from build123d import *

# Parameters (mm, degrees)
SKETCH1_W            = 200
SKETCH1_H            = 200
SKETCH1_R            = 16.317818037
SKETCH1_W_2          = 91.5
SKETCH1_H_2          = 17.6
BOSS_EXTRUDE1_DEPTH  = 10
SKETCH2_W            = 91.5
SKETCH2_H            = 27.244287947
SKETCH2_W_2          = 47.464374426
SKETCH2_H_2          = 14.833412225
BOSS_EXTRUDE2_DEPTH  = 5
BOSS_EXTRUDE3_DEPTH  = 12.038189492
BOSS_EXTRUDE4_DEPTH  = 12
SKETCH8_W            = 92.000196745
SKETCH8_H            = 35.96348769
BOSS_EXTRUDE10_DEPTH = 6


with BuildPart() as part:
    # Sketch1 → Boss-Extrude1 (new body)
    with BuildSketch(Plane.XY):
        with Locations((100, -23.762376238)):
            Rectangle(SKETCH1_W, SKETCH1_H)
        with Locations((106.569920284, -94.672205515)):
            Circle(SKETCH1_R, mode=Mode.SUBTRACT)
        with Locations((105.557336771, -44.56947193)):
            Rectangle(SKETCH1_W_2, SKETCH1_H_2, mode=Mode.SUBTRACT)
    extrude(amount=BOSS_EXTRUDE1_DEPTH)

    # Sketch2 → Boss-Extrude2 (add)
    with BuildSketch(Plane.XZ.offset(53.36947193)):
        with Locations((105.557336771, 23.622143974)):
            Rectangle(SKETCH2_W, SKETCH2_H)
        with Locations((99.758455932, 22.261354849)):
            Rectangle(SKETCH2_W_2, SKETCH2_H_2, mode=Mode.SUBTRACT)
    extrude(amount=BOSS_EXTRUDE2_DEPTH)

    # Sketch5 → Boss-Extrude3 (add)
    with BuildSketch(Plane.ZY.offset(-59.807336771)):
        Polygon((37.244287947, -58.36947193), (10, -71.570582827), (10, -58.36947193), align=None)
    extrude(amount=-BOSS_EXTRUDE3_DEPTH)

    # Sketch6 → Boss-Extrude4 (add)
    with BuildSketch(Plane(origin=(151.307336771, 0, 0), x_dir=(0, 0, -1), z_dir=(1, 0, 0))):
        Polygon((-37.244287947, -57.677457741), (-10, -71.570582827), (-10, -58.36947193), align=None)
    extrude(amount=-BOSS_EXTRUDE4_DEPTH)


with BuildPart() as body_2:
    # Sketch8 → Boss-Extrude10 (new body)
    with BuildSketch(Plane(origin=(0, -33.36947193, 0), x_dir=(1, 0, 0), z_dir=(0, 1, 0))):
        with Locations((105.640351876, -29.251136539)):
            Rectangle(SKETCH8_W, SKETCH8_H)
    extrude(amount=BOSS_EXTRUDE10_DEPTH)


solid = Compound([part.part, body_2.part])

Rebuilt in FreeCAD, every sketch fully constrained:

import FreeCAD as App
import Part
import Sketcher
from FreeCAD import Vector

doc = App.newDocument("Part")
body = doc.addObject("PartDesign::Body", "Body")

# Sketch on XY plane
sketch1 = body.newObject("Sketcher::SketchObject", "Sketch")
sketch1.AttachmentSupport = (doc.getObject("XY_Plane"), [""])
sketch1.MapMode = "FlatFace"
sketch1.addGeometry(Part.LineSegment(Vector(0, 76, 0), Vector(0, -124, 0)), False)
sketch1.addGeometry(Part.LineSegment(Vector(0, -124, 0), Vector(200, -124, 0)), False)
sketch1.addGeometry(Part.LineSegment(Vector(200, -124, 0), Vector(200, 76, 0)), False)
sketch1.addGeometry(Part.LineSegment(Vector(200, 76, 0), Vector(0, 76, 0)), False)
sketch1.addGeometry(Part.Circle(Vector(107, -95, 0), Vector(0, 0, 1), 16), False)
sketch1.addGeometry(Part.LineSegment(Vector(151, -53, 0), Vector(60, -53, 0)), False)
sketch1.addGeometry(Part.LineSegment(Vector(60, -53, 0), Vector(60, -36, 0)), False)
sketch1.addGeometry(Part.LineSegment(Vector(60, -36, 0), Vector(151, -36, 0)), False)
sketch1.addGeometry(Part.LineSegment(Vector(151, -36, 0), Vector(151, -53, 0)), False)
sketch1.addConstraint(Sketcher.Constraint("Coincident", 0, 2, 1, 1))
sketch1.addConstraint(Sketcher.Constraint("Coincident", 1, 2, 2, 1))
sketch1.addConstraint(Sketcher.Constraint("Coincident", 2, 2, 3, 1))
sketch1.addConstraint(Sketcher.Constraint("Coincident", 3, 2, 0, 1))
sketch1.addConstraint(Sketcher.Constraint("Coincident", 5, 2, 6, 1))
sketch1.addConstraint(Sketcher.Constraint("Coincident", 6, 2, 7, 1))
sketch1.addConstraint(Sketcher.Constraint("Coincident", 7, 2, 8, 1))
sketch1.addConstraint(Sketcher.Constraint("Coincident", 8, 2, 5, 1))
sketch1.addConstraint(Sketcher.Constraint("Vertical", 0))
sketch1.addConstraint(Sketcher.Constraint("Horizontal", 1))
sketch1.addConstraint(Sketcher.Constraint("Vertical", 2))
sketch1.addConstraint(Sketcher.Constraint("Horizontal", 3))
sketch1.addConstraint(Sketcher.Constraint("Horizontal", 5))
sketch1.addConstraint(Sketcher.Constraint("Vertical", 6))
sketch1.addConstraint(Sketcher.Constraint("Horizontal", 7))
sketch1.addConstraint(Sketcher.Constraint("Vertical", 8))
sketch1.addConstraint(Sketcher.Constraint("PointOnObject", 0, 2, -2))
sketch1.addConstraint(Sketcher.Constraint("Equal", 3, 0))
sketch1.addConstraint(Sketcher.Constraint("DistanceX", 1, 1, 1, 2, 200.0))
sketch1.addConstraint(Sketcher.Constraint("DistanceX", 5, 2, 5, 1, 91.5))
sketch1.addConstraint(Sketcher.Constraint("DistanceY", 6, 1, 6, 2, 17.6))
sketch1.addConstraint(Sketcher.Constraint("Diameter", 4, 32.635636))
sketch1.addConstraint(Sketcher.Constraint("DistanceX", -1, 1, 4, 3, 106.56992))
sketch1.addConstraint(Sketcher.Constraint("DistanceY", 5, 2, -1, 1, 53.369472))
sketch1.addConstraint(Sketcher.Constraint("DistanceY", 0, 2, 4, 3, 29.090171))
sketch1.addConstraint(Sketcher.Constraint("DistanceY", 4, 3, -1, 1, 94.672206))
sketch1.addConstraint(Sketcher.Constraint("DistanceX", -1, 1, 5, 2, 59.807337))
pad1 = body.newObject("PartDesign::Pad", "Pad")
pad1.Profile = sketch1
pad1.Length = 10

# Sketch on XZ plane
sketch2 = body.newObject("Sketcher::SketchObject", "Sketch001")
sketch2.AttachmentSupport = (doc.getObject("XZ_Plane"), [""])
sketch2.MapMode = "FlatFace"
sketch2.AttachmentOffset = App.Placement(Vector(0, 0, 53.369472), App.Rotation())
sketch2.addGeometry(Part.LineSegment(Vector(60, 37, 0), Vector(60, 10, 0)), False)
sketch2.addGeometry(Part.LineSegment(Vector(60, 10, 0), Vector(151, 10, 0)), False)
sketch2.addGeometry(Part.LineSegment(Vector(151, 10, 0), Vector(151, 37, 0)), False)
sketch2.addGeometry(Part.LineSegment(Vector(151, 37, 0), Vector(60, 37, 0)), False)
sketch2.addGeometry(Part.LineSegment(Vector(123, 15, 0), Vector(76, 15, 0)), False)
sketch2.addGeometry(Part.LineSegment(Vector(76, 15, 0), Vector(76, 30, 0)), False)
sketch2.addGeometry(Part.LineSegment(Vector(76, 30, 0), Vector(123, 30, 0)), False)
sketch2.addGeometry(Part.LineSegment(Vector(123, 30, 0), Vector(123, 15, 0)), False)
sketch2.addConstraint(Sketcher.Constraint("Coincident", 0, 2, 1, 1))
sketch2.addConstraint(Sketcher.Constraint("Coincident", 1, 2, 2, 1))
sketch2.addConstraint(Sketcher.Constraint("Coincident", 2, 2, 3, 1))
sketch2.addConstraint(Sketcher.Constraint("Coincident", 3, 2, 0, 1))
sketch2.addConstraint(Sketcher.Constraint("Coincident", 4, 2, 5, 1))
sketch2.addConstraint(Sketcher.Constraint("Coincident", 5, 2, 6, 1))
sketch2.addConstraint(Sketcher.Constraint("Coincident", 6, 2, 7, 1))
sketch2.addConstraint(Sketcher.Constraint("Coincident", 7, 2, 4, 1))
sketch2.addConstraint(Sketcher.Constraint("Vertical", 0))
sketch2.addConstraint(Sketcher.Constraint("Horizontal", 1))
sketch2.addConstraint(Sketcher.Constraint("Vertical", 2))
sketch2.addConstraint(Sketcher.Constraint("Horizontal", 3))
sketch2.addConstraint(Sketcher.Constraint("Horizontal", 4))
sketch2.addConstraint(Sketcher.Constraint("Vertical", 5))
sketch2.addConstraint(Sketcher.Constraint("Horizontal", 6))
sketch2.addConstraint(Sketcher.Constraint("Vertical", 7))
sketch2.addConstraint(Sketcher.Constraint("DistanceX", 1, 1, 1, 2, 91.5))
sketch2.addConstraint(Sketcher.Constraint("DistanceY", -1, 1, 0, 2, 10.0))
sketch2.addConstraint(Sketcher.Constraint("DistanceX", 4, 2, 4, 1, 47.464374))
sketch2.addConstraint(Sketcher.Constraint("DistanceY", 0, 2, 0, 1, 27.244288))
sketch2.addConstraint(Sketcher.Constraint("DistanceY", 5, 1, 5, 2, 14.833412))
sketch2.addConstraint(Sketcher.Constraint("DistanceX", -1, 1, 4, 2, 76.026269))
sketch2.addConstraint(Sketcher.Constraint("DistanceY", -1, 1, 4, 2, 14.844649))
sketch2.addConstraint(Sketcher.Constraint("DistanceX", 0, 2, 4, 2, 16.218932))
pad2 = body.newObject("PartDesign::Pad", "Pad001")
pad2.Profile = sketch2
pad2.Length = 5

# Sketch on YZ plane
sketch3 = body.newObject("Sketcher::SketchObject", "Sketch002")
sketch3.AttachmentSupport = (doc.getObject("YZ_Plane"), [""])
sketch3.MapMode = "FlatFace"
sketch3.AttachmentOffset = App.Placement(Vector(0, 0, 59.807337), App.Rotation())
sketch3.addGeometry(Part.LineSegment(Vector(-72, 10, 0), Vector(-58, 37, 0)), False)
sketch3.addGeometry(Part.LineSegment(Vector(-58, 37, 0), Vector(-58, 10, 0)), False)
sketch3.addGeometry(Part.LineSegment(Vector(-58, 10, 0), Vector(-72, 10, 0)), False)
sketch3.addConstraint(Sketcher.Constraint("Coincident", 0, 2, 1, 1))
sketch3.addConstraint(Sketcher.Constraint("Coincident", 1, 2, 2, 1))
sketch3.addConstraint(Sketcher.Constraint("Coincident", 2, 2, 0, 1))
sketch3.addConstraint(Sketcher.Constraint("Vertical", 1))
sketch3.addConstraint(Sketcher.Constraint("Horizontal", 2))
sketch3.addConstraint(Sketcher.Constraint("DistanceY", -1, 1, 1, 2, 10.0))
sketch3.addConstraint(Sketcher.Constraint("DistanceX", 2, 2, 2, 1, 13.201111))
sketch3.addConstraint(Sketcher.Constraint("Distance", 0, 30.27409))
sketch3.addConstraint(Sketcher.Constraint("DistanceX", 0, 2, -1, 1, 58.369472))
pad3 = body.newObject("PartDesign::Pad", "Pad002")
pad3.Profile = sketch3
pad3.Length = 12.038189

# Sketch on YZ plane
sketch4 = body.newObject("Sketcher::SketchObject", "Sketch003")
sketch4.AttachmentSupport = (doc.getObject("YZ_Plane"), [""])
sketch4.MapMode = "FlatFace"
sketch4.AttachmentOffset = App.Placement(Vector(0, 0, 151.307337), App.Rotation())
sketch4.addGeometry(Part.LineSegment(Vector(-58, 37, 0), Vector(-72, 10, 0)), False)
sketch4.addGeometry(Part.LineSegment(Vector(-72, 10, 0), Vector(-58, 10, 0)), False)
sketch4.addGeometry(Part.LineSegment(Vector(-58, 10, 0), Vector(-58, 37, 0)), False)
sketch4.addConstraint(Sketcher.Constraint("Coincident", 0, 2, 1, 1))
sketch4.addConstraint(Sketcher.Constraint("Coincident", 1, 2, 2, 1))
sketch4.addConstraint(Sketcher.Constraint("Coincident", 2, 2, 0, 1))
sketch4.addConstraint(Sketcher.Constraint("Horizontal", 1))
sketch4.addConstraint(Sketcher.Constraint("DistanceY", -1, 1, 0, 2, 10.0))
sketch4.addConstraint(Sketcher.Constraint("DistanceX", 1, 1, 1, 2, 13.201111))
sketch4.addConstraint(Sketcher.Constraint("DistanceX", 1, 2, -1, 1, 58.369472))
sketch4.addConstraint(Sketcher.Constraint("Distance", 0, 30.582187))
sketch4.addConstraint(Sketcher.Constraint("Distance", 2, 27.253075))
pad4 = body.newObject("PartDesign::Pad", "Pad003")
pad4.Profile = sketch4
pad4.Length = 12
pad4.Reversed = True
body2 = doc.addObject("PartDesign::Body", "Body001")

# Sketch on XZ plane
sketch5 = body2.newObject("Sketcher::SketchObject", "Sketch004")
sketch5.AttachmentSupport = (doc.getObject("XZ_Plane001"), [""])
sketch5.MapMode = "FlatFace"
sketch5.AttachmentOffset = App.Placement(Vector(0, 0, 33.369472), App.Rotation())
sketch5.addGeometry(Part.LineSegment(Vector(60, 11, 0), Vector(60, 47, 0)), False)
sketch5.addGeometry(Part.LineSegment(Vector(60, 47, 0), Vector(152, 47, 0)), False)
sketch5.addGeometry(Part.LineSegment(Vector(152, 47, 0), Vector(152, 11, 0)), False)
sketch5.addGeometry(Part.LineSegment(Vector(152, 11, 0), Vector(60, 11, 0)), False)
sketch5.addConstraint(Sketcher.Constraint("Coincident", 0, 2, 1, 1))
sketch5.addConstraint(Sketcher.Constraint("Coincident", 1, 2, 2, 1))
sketch5.addConstraint(Sketcher.Constraint("Coincident", 2, 2, 3, 1))
sketch5.addConstraint(Sketcher.Constraint("Coincident", 3, 2, 0, 1))
sketch5.addConstraint(Sketcher.Constraint("Vertical", 0))
sketch5.addConstraint(Sketcher.Constraint("Horizontal", 1))
sketch5.addConstraint(Sketcher.Constraint("Vertical", 2))
sketch5.addConstraint(Sketcher.Constraint("Horizontal", 3))
sketch5.addConstraint(Sketcher.Constraint("DistanceX", 1, 1, 1, 2, 92.000197))
sketch5.addConstraint(Sketcher.Constraint("DistanceY", 0, 1, 0, 2, 35.963488))
sketch5.addConstraint(Sketcher.Constraint("DistanceY", -1, 1, 0, 2, 47.23288))
sketch5.addConstraint(Sketcher.Constraint("DistanceX", -1, 1, 1, 2, 151.64045))
pad5 = body2.newObject("PartDesign::Pad", "Pad004")
pad5.Profile = sketch5
pad5.Length = 6
pad5.Reversed = True

doc.recompute()
